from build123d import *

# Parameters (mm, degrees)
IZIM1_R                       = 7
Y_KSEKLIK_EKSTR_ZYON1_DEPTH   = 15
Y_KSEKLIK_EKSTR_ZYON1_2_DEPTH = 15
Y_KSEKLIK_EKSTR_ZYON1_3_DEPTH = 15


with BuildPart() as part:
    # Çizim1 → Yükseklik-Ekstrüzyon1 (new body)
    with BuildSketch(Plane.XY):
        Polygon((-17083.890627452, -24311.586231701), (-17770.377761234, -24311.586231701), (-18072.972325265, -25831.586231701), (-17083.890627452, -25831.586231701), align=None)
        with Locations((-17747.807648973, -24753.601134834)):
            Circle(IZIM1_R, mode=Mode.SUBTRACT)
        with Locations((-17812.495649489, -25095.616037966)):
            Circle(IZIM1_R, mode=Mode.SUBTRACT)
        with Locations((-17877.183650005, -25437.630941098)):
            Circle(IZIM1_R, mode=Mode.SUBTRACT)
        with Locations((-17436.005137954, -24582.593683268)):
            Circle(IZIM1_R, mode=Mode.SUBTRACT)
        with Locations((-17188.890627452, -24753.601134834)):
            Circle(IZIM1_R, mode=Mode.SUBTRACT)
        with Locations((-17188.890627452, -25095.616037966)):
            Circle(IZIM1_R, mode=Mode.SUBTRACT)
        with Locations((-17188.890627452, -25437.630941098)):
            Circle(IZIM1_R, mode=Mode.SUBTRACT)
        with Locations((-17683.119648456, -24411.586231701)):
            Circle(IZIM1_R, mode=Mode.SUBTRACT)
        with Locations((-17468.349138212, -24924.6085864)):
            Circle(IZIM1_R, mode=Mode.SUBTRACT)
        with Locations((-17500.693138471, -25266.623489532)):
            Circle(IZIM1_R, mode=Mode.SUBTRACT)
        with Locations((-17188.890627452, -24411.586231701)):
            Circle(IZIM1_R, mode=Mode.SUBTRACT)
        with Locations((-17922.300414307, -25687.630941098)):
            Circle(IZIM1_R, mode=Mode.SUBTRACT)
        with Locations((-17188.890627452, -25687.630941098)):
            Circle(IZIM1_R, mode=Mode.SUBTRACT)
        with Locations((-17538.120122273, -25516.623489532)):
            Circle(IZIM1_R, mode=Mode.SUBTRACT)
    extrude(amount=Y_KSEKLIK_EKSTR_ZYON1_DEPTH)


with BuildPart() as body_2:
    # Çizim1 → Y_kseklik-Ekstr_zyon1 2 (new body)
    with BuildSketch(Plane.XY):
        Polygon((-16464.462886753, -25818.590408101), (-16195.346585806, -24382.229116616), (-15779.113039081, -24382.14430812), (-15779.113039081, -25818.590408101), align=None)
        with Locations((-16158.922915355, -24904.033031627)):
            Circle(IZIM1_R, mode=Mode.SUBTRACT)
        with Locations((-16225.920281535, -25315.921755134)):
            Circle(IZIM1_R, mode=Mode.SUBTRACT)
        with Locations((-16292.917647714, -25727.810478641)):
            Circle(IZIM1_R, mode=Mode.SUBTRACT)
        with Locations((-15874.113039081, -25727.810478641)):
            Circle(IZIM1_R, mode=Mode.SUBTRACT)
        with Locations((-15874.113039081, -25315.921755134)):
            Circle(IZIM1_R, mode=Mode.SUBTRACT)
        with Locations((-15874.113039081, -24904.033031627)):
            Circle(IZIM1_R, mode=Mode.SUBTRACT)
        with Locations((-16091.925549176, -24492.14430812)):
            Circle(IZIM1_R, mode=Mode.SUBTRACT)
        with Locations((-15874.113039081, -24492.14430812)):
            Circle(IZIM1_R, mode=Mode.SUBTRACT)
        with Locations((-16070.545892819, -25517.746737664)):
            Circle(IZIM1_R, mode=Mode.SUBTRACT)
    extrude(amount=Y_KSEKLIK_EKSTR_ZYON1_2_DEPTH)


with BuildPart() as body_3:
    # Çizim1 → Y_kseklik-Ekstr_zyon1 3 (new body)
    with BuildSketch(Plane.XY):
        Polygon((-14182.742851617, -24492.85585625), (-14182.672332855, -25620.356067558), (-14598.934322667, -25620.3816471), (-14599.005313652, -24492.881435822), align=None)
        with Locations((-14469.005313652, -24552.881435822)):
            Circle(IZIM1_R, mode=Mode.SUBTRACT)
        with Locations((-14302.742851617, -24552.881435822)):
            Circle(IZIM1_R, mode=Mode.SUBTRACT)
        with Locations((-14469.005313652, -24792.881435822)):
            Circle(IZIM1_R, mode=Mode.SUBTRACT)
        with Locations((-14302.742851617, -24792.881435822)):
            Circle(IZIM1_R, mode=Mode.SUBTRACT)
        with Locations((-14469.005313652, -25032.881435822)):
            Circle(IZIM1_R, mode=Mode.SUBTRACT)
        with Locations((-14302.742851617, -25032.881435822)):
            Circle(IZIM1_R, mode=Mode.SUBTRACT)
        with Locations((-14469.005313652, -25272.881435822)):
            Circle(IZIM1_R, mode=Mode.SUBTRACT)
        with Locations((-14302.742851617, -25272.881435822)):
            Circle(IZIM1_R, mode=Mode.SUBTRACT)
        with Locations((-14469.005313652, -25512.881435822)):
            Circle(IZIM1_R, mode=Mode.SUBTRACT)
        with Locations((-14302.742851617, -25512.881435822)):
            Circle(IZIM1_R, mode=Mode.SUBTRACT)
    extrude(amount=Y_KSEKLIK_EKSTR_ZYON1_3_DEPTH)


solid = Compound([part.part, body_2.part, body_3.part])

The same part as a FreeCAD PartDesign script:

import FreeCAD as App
import Part
import Sketcher

V = App.Vector


def add_polygon(sketch, points):
    """Adds a closed chain of lines whose ends are joined by coincident constraints."""
    first, n = sketch.GeometryCount, len(points)
    for a, b in zip(points, points[1:] + points[:1]):
        sketch.addGeometry(Part.LineSegment(App.Vector(*a, 0), App.Vector(*b, 0)), False)
    for i in range(n):
        sketch.addConstraint(Sketcher.Constraint("Coincident", first + i, 2, first + (i + 1) % n, 1))

doc = App.newDocument("Part")
params = doc.addObject("Spreadsheet::Sheet", "Params")
for row, (alias, value) in enumerate([
    ("sketch1_diameter", "14 mm"),
    ("sketch1_height", "1520 mm"),
    ("pad1_length", "15 mm"),
    ("sketch2_diameter", "14 mm"),
    ("pad2_length", "15 mm"),
    ("sketch3_diameter", "14 mm"),
    ("pad3_length", "15 mm"),
], start=1):
    params.set(f"A{row}", alias)
    params.set(f"B{row}", "=" + value)
    params.setAlias(f"B{row}", alias)

body = doc.addObject("PartDesign::Body", "Body")

# Sketch on XY plane
sketch1 = body.newObject("Sketcher::SketchObject", "Sketch")
sketch1.AttachmentSupport = (doc.getObject("XY_Plane"), [""])
sketch1.MapMode = "FlatFace"
add_polygon(sketch1, [(-17084, -24312), (-17770, -24312), (-18073, -25832), (-17084, -25832)])  # lines 0-3
sketch1.addGeometry(Part.Circle(V(-17922, -25688, 0), V(0, 0, 1), 7), False)  # 4
sketch1.addGeometry(Part.Circle(V(-17877, -25438, 0), V(0, 0, 1), 7), False)  # 5
sketch1.addGeometry(Part.Circle(V(-17812, -25096, 0), V(0, 0, 1), 7), False)  # 6
sketch1.addGeometry(Part.Circle(V(-17538, -25517, 0), V(0, 0, 1), 7), False)  # 7
sketch1.addGeometry(Part.Circle(V(-17189, -25688, 0), V(0, 0, 1), 7), False)  # 8
sketch1.addGeometry(Part.Circle(V(-17189, -25438, 0), V(0, 0, 1), 7), False)  # 9
sketch1.addGeometry(Part.Circle(V(-17501, -25267, 0), V(0, 0, 1), 7), False)  # 10
sketch1.addGeometry(Part.Circle(V(-17189, -25096, 0), V(0, 0, 1), 7), False)  # 11
sketch1.addGeometry(Part.Circle(V(-17748, -24754, 0), V(0, 0, 1), 7), False)  # 12
sketch1.addGeometry(Part.Circle(V(-17683, -24412, 0), V(0, 0, 1), 7), False)  # 13
sketch1.addGeometry(Part.Circle(V(-17468, -24925, 0), V(0, 0, 1), 7), False)  # 14
sketch1.addGeometry(Part.Circle(V(-17189, -24754, 0), V(0, 0, 1), 7), False)  # 15
sketch1.addGeometry(Part.Circle(V(-17436, -24583, 0), V(0, 0, 1), 7), False)  # 16
sketch1.addGeometry(Part.Circle(V(-17189, -24412, 0), V(0, 0, 1), 7), False)  # 17
sketch1.addConstraint(Sketcher.Constraint("Horizontal", 0))
sketch1.addConstraint(Sketcher.Constraint("Horizontal", 2))
sketch1.addConstraint(Sketcher.Constraint("Vertical", 3))
sketch1.addConstraint(Sketcher.Constraint("Equal", 4, 5))
sketch1.addConstraint(Sketcher.Constraint("Equal", 5, 6))
sketch1.addConstraint(Sketcher.Constraint("Equal", 6, 7))
sketch1.addConstraint(Sketcher.Constraint("Equal", 7, 8))
sketch1.addConstraint(Sketcher.Constraint("Equal", 8, 9))
sketch1.addConstraint(Sketcher.Constraint("Equal", 9, 10))
sketch1.addConstraint(Sketcher.Constraint("Equal", 10, 11))
sketch1.addConstraint(Sketcher.Constraint("Equal", 11, 12))
sketch1.addConstraint(Sketcher.Constraint("Equal", 12, 13))
sketch1.addConstraint(Sketcher.Constraint("Equal", 13, 14))
sketch1.addConstraint(Sketcher.Constraint("Equal", 14, 15))
sketch1.addConstraint(Sketcher.Constraint("Equal", 15, 16))
sketch1.addConstraint(Sketcher.Constraint("Equal", 16, 17))
sketch1.addConstraint(Sketcher.Constraint("Horizontal", 4, 3, 8, 3))
sketch1.addConstraint(Sketcher.Constraint("Horizontal", 5, 3, 9, 3))
sketch1.addConstraint(Sketcher.Constraint("Horizontal", 6, 3, 11, 3))
sketch1.addConstraint(Sketcher.Constraint("Horizontal", 12, 3, 15, 3))
sketch1.addConstraint(Sketcher.Constraint("Horizontal", 13, 3, 17, 3))
sketch1.addConstraint(Sketcher.Constraint("Vertical", 8, 3, 9, 3))
sketch1.addConstraint(Sketcher.Constraint("Vertical", 9, 3, 11, 3))
sketch1.addConstraint(Sketcher.Constraint("Vertical", 11, 3, 15, 3))
sketch1.addConstraint(Sketcher.Constraint("Vertical", 15, 3, 17, 3))
sketch1.addConstraint(Sketcher.Constraint("Diameter", 4, 14.0))
sketch1.addConstraint(Sketcher.Constraint("DistanceY", 3, 1, 3, 2, 1520.0))
sketch1.addConstraint(Sketcher.Constraint("DistanceY", 4, 3, 5, 3, 250.0))
sketch1.addConstraint(Sketcher.Constraint("DistanceY", 7, 3, 10, 3, 250.0))
sketch1.addConstraint(Sketcher.Constraint("DistanceY", 13, 3, 0, 2, 100.0))
sketch1.addConstraint(Sketcher.Constraint("DistanceX", 8, 3, 2, 2, 105.0))
sketch1.addConstraint(Sketcher.Constraint("DistanceX", 5, 3, 6, 3, 64.688001))
sketch1.addConstraint(Sketcher.Constraint("DistanceX", 6, 3, 12, 3, 64.688001))
sketch1.addConstraint(Sketcher.Constraint("DistanceX", 12, 3, 13, 3, 64.688001))
sketch1.addConstraint(Sketcher.Constraint("DistanceX", 10, 3, 14, 3, 32.344))
sketch1.addConstraint(Sketcher.Constraint("DistanceX", 14, 3, 16, 3, 32.344))
sketch1.addConstraint(Sketcher.Constraint("DistanceX", 0, 2, 0, 1, 686.487134))
sketch1.addConstraint(Sketcher.Constraint("DistanceX", 2, 1, 2, 2, 989.081698))
sketch1.addConstraint(Sketcher.Constraint("DistanceY", 4, 3, -1, 1, 25687.630941))
sketch1.addConstraint(Sketcher.Constraint("DistanceX", 5, 3, -1, 1, 17877.18365))
sketch1.addConstraint(Sketcher.Constraint("DistanceY", 7, 3, -1, 1, 25516.62349))
sketch1.addConstraint(Sketcher.Constraint("DistanceX", 10, 3, -1, 1, 17500.693138))
sketch1.addConstraint(Sketcher.Constraint("DistanceY", 13, 3, -1, 1, 24411.586232))
sketch1.addConstraint(Sketcher.Constraint("DistanceX", 0, 2, -1, 1, 17770.377761))
sketch1.addConstraint(Sketcher.Constraint("DistanceY", 7, 3, 6, 3, 421.007452))
sketch1.addConstraint(Sketcher.Constraint("DistanceY", 11, 3, 14, 3, 171.007452))
sketch1.addConstraint(Sketcher.Constraint("DistanceY", 14, 3, 12, 3, 171.007452))
sketch1.addConstraint(Sketcher.Constraint("DistanceY", 15, 3, 16, 3, 171.007452))
sketch1.addConstraint(Sketcher.Constraint("DistanceX", 1, 2, 4, 3, 150.671911))
sketch1.addConstraint(Sketcher.Constraint("DistanceX", 7, 3, -1, 1, 17538.120122))
sketch1.setExpression("Constraints[29]", "Params.sketch1_diameter")
sketch1.setExpression("Constraints[30]", "Params.sketch1_height")
pad1 = body.newObject("PartDesign::Pad", "Pad")
pad1.Profile = sketch1
pad1.setExpression("Length", "Params.pad1_length")
body2 = doc.addObject("PartDesign::Body", "Body001")

# Sketch on XY plane
sketch2 = body2.newObject("Sketcher::SketchObject", "Sketch001")
sketch2.AttachmentSupport = (doc.getObject("XY_Plane001"), [""])
sketch2.MapMode = "FlatFace"
add_polygon(sketch2, [(-16195, -24382), (-16464, -25819), (-15779, -25819), (-15779, -24382)])  # lines 0-3
sketch2.addGeometry(Part.Circle(V(-15874, -25728, 0), V(0, 0, 1), 7), False)  # 4
sketch2.addGeometry(Part.Circle(V(-16071, -25518, 0), V(0, 0, 1), 7), False)  # 5
sketch2.addGeometry(Part.Circle(V(-15874, -25316, 0), V(0, 0, 1), 7), False)  # 6
sketch2.addGeometry(Part.Circle(V(-16293, -25728, 0), V(0, 0, 1), 7), False)  # 7
sketch2.addGeometry(Part.Circle(V(-16226, -25316, 0), V(0, 0, 1), 7), False)  # 8
sketch2.addGeometry(Part.Circle(V(-15874, -24904, 0), V(0, 0, 1), 7), False)  # 9
sketch2.addGeometry(Part.Circle(V(-15874, -24492, 0), V(0, 0, 1), 7), False)  # 10
sketch2.addGeometry(Part.Circle(V(-16159, -24904, 0), V(0, 0, 1), 7), False)  # 11
sketch2.addGeometry(Part.Circle(V(-16092, -24492, 0), V(0, 0, 1), 7), False)  # 12
sketch2.addConstraint(Sketcher.Constraint("Horizontal", 1))
sketch2.addConstraint(Sketcher.Constraint("Vertical", 2))
sketch2.addConstraint(Sketcher.Constraint("Equal", 4, 5))
sketch2.addConstraint(Sketcher.Constraint("Equal", 5, 6))
sketch2.addConstraint(Sketcher.Constraint("Equal", 6, 7))
sketch2.addConstraint(Sketcher.Constraint("Equal", 7, 8))
sketch2.addConstraint(Sketcher.Constraint("Equal", 8, 9))
sketch2.addConstraint(Sketcher.Constraint("Equal", 9, 10))
sketch2.addConstraint(Sketcher.Constraint("Equal", 10, 11))
sketch2.addConstraint(Sketcher.Constraint("Equal", 11, 12))
sketch2.addConstraint(Sketcher.Constraint("Horizontal", 4, 3, 7, 3))
sketch2.addConstraint(Sketcher.Constraint("Horizontal", 6, 3, 8, 3))
sketch2.addConstraint(Sketcher.Constraint("Horizontal", 9, 3, 11, 3))
sketch2.addConstraint(Sketcher.Constraint("Horizontal", 10, 3, 12, 3))
sketch2.addConstraint(Sketcher.Constraint("Vertical", 4, 3, 6, 3))
sketch2.addConstraint(Sketcher.Constraint("Vertical", 6, 3, 9, 3))
sketch2.addConstraint(Sketcher.Constraint("Vertical", 9, 3, 10, 3))
sketch2.addConstraint(Sketcher.Constraint("Diameter", 4, 14.0))
sketch2.addConstraint(Sketcher.Constraint("DistanceX", 4, 3, 1, 2, 95.0))
sketch2.addConstraint(Sketcher.Constraint("DistanceY", 10, 3, 2, 2, 110.0))
sketch2.addConstraint(Sketcher.Constraint("DistanceY", 2, 1, 2, 2, 1436.4461))
sketch2.addConstraint(Sketcher.Constraint("DistanceX", 1, 1, 1, 2, 685.349848))
sketch2.addConstraint(Sketcher.Constraint("DistanceX", 4, 3, -1, 1, 15874.113039))
sketch2.addConstraint(Sketcher.Constraint("DistanceY", 4, 3, -1, 1, 25727.810479))
sketch2.addConstraint(Sketcher.Constraint("DistanceX", 8, 3, -1, 1, 16225.920282))
sketch2.addConstraint(Sketcher.Constraint("DistanceY", 9, 3, -1, 1, 24904.033032))
sketch2.addConstraint(Sketcher.Constraint("DistanceY", 10, 3, -1, 1, 24492.144308))
sketch2.addConstraint(Sketcher.Constraint("DistanceX", 12, 3, -1, 1, 16091.925549))
sketch2.addConstraint(Sketcher.Constraint("DistanceY", 4, 3, 5, 3, 210.063741))
sketch2.addConstraint(Sketcher.Constraint("DistanceX", 7, 3, 4, 3, 418.804609))
sketch2.addConstraint(Sketcher.Constraint("DistanceX", 8, 3, 5, 3, 155.374389))
sketch2.addConstraint(Sketcher.Constraint("DistanceY", 12, 3, 3, 2, 109.915192))
sketch2.addConstraint(Sketcher.Constraint("DistanceX", 3, 2, 11, 3, 36.42367))
sketch2.addConstraint(Sketcher.Constraint("Distance", 0, 1461.354626))
sketch2.addConstraint(Sketcher.Constraint("DistanceY", 6, 3, -1, 1, 25315.921755))
sketch2.setExpression("Constraints[21]", "Params.sketch2_diameter")
pad2 = body2.newObject("PartDesign::Pad", "Pad001")
pad2.Profile = sketch2
pad2.setExpression("Length", "Params.pad2_length")
body3 = doc.addObject("PartDesign::Body", "Body002")

# Sketch on XY plane
sketch3 = body3.newObject("Sketcher::SketchObject", "Sketch002")
sketch3.AttachmentSupport = (doc.getObject("XY_Plane002"), [""])
sketch3.MapMode = "FlatFace"
add_polygon(sketch3, [(-14182.672333, -25620.356068), (-14182.742852, -24492.855856), (-14599.005314, -24492.881436), (-14598.934323, -25620.381647)])  # lines 0-3
sketch3.addGeometry(Part.Circle(V(-14302.742852, -25512.881436, 0), V(0, 0, 1), 7), False)  # 4
sketch3.addGeometry(Part.Circle(V(-14302.742852, -25272.881436, 0), V(0, 0, 1), 7), False)  # 5
sketch3.addGeometry(Part.Circle(V(-14469.005314, -25512.881436, 0), V(0, 0, 1), 7), False)  # 6
sketch3.addGeometry(Part.Circle(V(-14469.005314, -25272.881436, 0), V(0, 0, 1), 7), False)  # 7
sketch3.addGeometry(Part.Circle(V(-14302.742852, -25032.881436, 0), V(0, 0, 1), 7), False)  # 8
sketch3.addGeometry(Part.Circle(V(-14302.742852, -24792.881436, 0), V(0, 0, 1), 7), False)  # 9
sketch3.addGeometry(Part.Circle(V(-14302.742852, -24552.881436, 0), V(0, 0, 1), 7), False)  # 10
sketch3.addGeometry(Part.Circle(V(-14469.005314, -25032.881436, 0), V(0, 0, 1), 7), False)  # 11
sketch3.addGeometry(Part.Circle(V(-14469.005314, -24792.881436, 0), V(0, 0, 1), 7), False)  # 12
sketch3.addGeometry(Part.Circle(V(-14469.005314, -24552.881436, 0), V(0, 0, 1), 7), False)  # 13
sketch3.addConstraint(Sketcher.Constraint("Equal", 4, 5))
sketch3.addConstraint(Sketcher.Constraint("Equal", 5, 6))
sketch3.addConstraint(Sketcher.Constraint("Equal", 6, 7))
sketch3.addConstraint(Sketcher.Constraint("Equal", 7, 8))
sketch3.addConstraint(Sketcher.Constraint("Equal", 8, 9))
sketch3.addConstraint(Sketcher.Constraint("Equal", 9, 10))
sketch3.addConstraint(Sketcher.Constraint("Equal", 10, 11))
sketch3.addConstraint(Sketcher.Constraint("Equal", 11, 12))
sketch3.addConstraint(Sketcher.Constraint("Equal", 12, 13))
sketch3.addConstraint(Sketcher.Constraint("Perpendicular", 0, 1))
sketch3.addConstraint(Sketcher.Constraint("Perpendicular", 1, 2))
sketch3.addConstraint(Sketcher.Constraint("Perpendicular", 2, 3))
sketch3.addConstraint(Sketcher.Constraint("Horizontal", 4, 3, 6, 3))
sketch3.addConstraint(Sketcher.Constraint("Horizontal", 5, 3, 7, 3))
sketch3.addConstraint(Sketcher.Constraint("Horizontal", 8, 3, 11, 3))
sketch3.addConstraint(Sketcher.Constraint("Horizontal", 9, 3, 12, 3))
sketch3.addConstraint(Sketcher.Constraint("Horizontal", 10, 3, 13, 3))
sketch3.addConstraint(Sketcher.Constraint("Vertical", 4, 3, 5, 3))
sketch3.addConstraint(Sketcher.Constraint("Vertical", 6, 3, 7, 3))
sketch3.addConstraint(Sketcher.Constraint("Vertical", 5, 3, 8, 3))
sketch3.addConstraint(Sketcher.Constraint("Vertical", 8, 3, 9, 3))
sketch3.addConstraint(Sketcher.Constraint("Vertical", 9, 3, 10, 3))
sketch3.addConstraint(Sketcher.Constraint("Vertical", 7, 3, 11, 3))
sketch3.addConstraint(Sketcher.Constraint("Vertical", 11, 3, 12, 3))
sketch3.addConstraint(Sketcher.Constraint("Vertical", 12, 3, 13, 3))
sketch3.addConstraint(Sketcher.Constraint("Diameter", 4, 14.0))
sketch3.addConstraint(Sketcher.Constraint("DistanceY", 4, 3, 5, 3, 240.0))
sketch3.addConstraint(Sketcher.Constraint("DistanceY", 5, 3, 8, 3, 240.0))
sketch3.addConstraint(Sketcher.Constraint("DistanceY", 8, 3, 9, 3, 240.0))
sketch3.addConstraint(Sketcher.Constraint("DistanceY", 9, 3, 10, 3, 240.0))
sketch3.addConstraint(Sketcher.Constraint("DistanceX", 10, 3, 0, 2, 120.0))
sketch3.addConstraint(Sketcher.Constraint("DistanceX", 1, 2, 13, 3, 130.0))
sketch3.addConstraint(Sketcher.Constraint("DistanceY", 13, 3, 1, 2, 60.0))
sketch3.addConstraint(Sketcher.Constraint("Distance", 3, 416.261991))
sketch3.addConstraint(Sketcher.Constraint("DistanceX", 4, 3, -1, 1, 14302.742852))
sketch3.addConstraint(Sketcher.Constraint("DistanceY", 10, 3, 0, 2, 60.02558))
sketch3.addConstraint(Sketcher.Constraint("DistanceY", 2, 2, 6, 3, 107.500211))
sketch3.addConstraint(Sketcher.Constraint("DistanceY", 4, 3, -1, 1, 25512.881436))
sketch3.setExpression("Constraints[29]", "Params.sketch3_diameter")
pad3 = body3.newObject("PartDesign::Pad", "Pad002")
pad3.Profile = sketch3
pad3.setExpression("Length", "Params.pad3_length")

doc.recompute()
